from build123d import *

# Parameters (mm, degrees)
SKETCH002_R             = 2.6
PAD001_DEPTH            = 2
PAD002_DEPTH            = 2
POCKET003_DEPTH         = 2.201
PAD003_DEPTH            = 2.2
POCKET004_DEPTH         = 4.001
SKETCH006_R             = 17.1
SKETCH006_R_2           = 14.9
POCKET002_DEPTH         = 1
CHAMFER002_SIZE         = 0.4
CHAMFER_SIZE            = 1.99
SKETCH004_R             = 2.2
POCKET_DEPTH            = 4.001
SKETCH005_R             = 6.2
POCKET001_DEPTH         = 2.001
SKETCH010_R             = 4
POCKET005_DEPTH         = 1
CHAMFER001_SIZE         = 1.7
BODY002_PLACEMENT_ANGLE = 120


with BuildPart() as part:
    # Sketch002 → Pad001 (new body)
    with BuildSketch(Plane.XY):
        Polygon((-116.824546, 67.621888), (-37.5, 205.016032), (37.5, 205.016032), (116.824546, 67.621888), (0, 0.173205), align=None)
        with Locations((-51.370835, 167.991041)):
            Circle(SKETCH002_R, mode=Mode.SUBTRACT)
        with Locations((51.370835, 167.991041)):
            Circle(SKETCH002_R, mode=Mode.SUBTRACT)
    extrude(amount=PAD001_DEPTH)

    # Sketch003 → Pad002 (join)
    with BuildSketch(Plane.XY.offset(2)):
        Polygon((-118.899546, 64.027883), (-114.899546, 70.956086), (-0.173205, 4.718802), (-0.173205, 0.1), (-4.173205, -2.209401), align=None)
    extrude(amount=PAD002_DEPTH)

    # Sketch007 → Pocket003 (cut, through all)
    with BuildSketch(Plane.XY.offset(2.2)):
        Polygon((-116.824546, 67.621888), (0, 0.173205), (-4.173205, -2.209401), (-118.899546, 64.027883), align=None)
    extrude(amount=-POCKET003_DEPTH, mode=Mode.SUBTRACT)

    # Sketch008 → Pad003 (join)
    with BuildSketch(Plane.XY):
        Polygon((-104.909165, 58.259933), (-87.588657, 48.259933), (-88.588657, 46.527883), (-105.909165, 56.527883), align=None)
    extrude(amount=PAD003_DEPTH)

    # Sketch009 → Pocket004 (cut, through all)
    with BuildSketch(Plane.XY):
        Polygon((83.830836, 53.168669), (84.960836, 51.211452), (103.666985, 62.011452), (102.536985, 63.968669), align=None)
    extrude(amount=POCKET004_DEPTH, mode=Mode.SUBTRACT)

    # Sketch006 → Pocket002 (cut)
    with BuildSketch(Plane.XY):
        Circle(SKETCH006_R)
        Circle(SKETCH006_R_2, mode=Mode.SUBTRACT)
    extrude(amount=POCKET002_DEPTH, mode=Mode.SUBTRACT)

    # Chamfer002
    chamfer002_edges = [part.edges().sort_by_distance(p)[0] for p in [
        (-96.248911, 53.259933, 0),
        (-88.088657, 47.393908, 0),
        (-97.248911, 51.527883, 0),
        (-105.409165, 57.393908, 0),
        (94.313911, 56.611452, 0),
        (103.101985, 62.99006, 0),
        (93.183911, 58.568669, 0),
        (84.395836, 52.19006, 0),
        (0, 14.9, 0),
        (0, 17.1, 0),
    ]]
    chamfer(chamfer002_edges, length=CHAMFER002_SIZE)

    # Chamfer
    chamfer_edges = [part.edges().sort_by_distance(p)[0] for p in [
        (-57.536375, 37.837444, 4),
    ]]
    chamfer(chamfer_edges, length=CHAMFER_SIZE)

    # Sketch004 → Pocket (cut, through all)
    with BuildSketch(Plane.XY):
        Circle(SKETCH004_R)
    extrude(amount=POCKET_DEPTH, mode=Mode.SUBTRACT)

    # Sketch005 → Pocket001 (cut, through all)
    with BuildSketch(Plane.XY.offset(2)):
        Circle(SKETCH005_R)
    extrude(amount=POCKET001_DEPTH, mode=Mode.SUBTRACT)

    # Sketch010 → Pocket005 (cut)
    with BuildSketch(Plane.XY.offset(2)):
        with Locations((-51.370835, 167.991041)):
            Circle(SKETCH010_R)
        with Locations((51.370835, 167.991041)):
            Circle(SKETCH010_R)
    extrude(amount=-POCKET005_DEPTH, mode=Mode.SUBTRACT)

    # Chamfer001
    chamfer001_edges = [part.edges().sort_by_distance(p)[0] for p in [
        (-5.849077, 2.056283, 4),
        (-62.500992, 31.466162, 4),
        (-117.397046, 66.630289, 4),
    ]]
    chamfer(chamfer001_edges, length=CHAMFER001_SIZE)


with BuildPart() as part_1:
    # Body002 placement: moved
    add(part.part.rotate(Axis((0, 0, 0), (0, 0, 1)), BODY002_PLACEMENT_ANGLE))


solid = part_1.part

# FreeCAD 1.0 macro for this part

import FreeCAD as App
import Part
import Sketcher
Q = App.Units.Quantity


def edges_at(feature, points):
    """Names of the edges that pass closest to the given points."""
    edges = feature.Shape.Edges
    near = lambda p: min(range(len(edges)), key=lambda i: edges[i].distToShape(Part.Vertex(*p))[0])
    return sorted({f"Edge{near(p) + 1}" for p in points})


def add_polygon(sketch, points):
    """Adds a closed chain of lines whose ends are joined by coincident constraints."""
    first, n = sketch.GeometryCount, len(points)
    for a, b in zip(points, points[1:] + points[:1]):
        sketch.addGeometry(Part.LineSegment(App.Vector(*a, 0), App.Vector(*b, 0)), False)
    for i in range(n):
        sketch.addConstraint(Sketcher.Constraint("Coincident", first + i, 2, first + (i + 1) % n, 1))

doc = App.newDocument("Part")
body = doc.addObject("PartDesign::Body", "Body")

sketch1 = doc.addObject("Sketcher::SketchObject", "Sketch")
body.addObject(sketch1)
sketch1.AttachmentSupport = (doc.XY_Plane, [""])
sketch1.MapMode = "FlatFace"
add_polygon(sketch1, [(-37.5, 205), (-116.8, 67.6), (0, 0.2), (116.8, 67.6), (37.5, 205)])
sketch1.addGeometry(Part.Circle(App.Vector(51.4, 168, 0), App.Vector(0, 0, 1), 2.6), False)
sketch1.addGeometry(Part.Circle(App.Vector(-51.4, 168, 0), App.Vector(0, 0, 1), 2.6), False)
sketch1.addConstraint([
    Sketcher.Constraint("Horizontal", 4),
    Sketcher.Constraint("Equal", 5, 6),
    Sketcher.Constraint("Symmetric", 5, 3, 6, 3, -2),
    Sketcher.Constraint("Symmetric", 0, 2, 2, 2, -2),
    Sketcher.Constraint("PointOnObject", 1, 2, -2),
    Sketcher.Constraint("Perpendicular", 0, 1),
    Sketcher.Constraint("Perpendicular", 2, 3),
    Sketcher.Constraint("Diameter", 5, 5.2),
    Sketcher.Constraint("DistanceX", 4, 2, 4, 1, 75.0),
    Sketcher.Constraint("Angle", 0, Q("-120 deg")),
    Sketcher.Constraint("DistanceY", -1, 1, 5, 3, 167.991041),
    Sketcher.Constraint("DistanceY", -1, 1, 0, 2, 67.621888),
    Sketcher.Constraint("DistanceY", -1, 1, 3, 2, 205.016032),
    Sketcher.Constraint("DistanceX", 6, 3, 5, 3, 102.74167),
])
pad1 = doc.addObject("PartDesign::Pad", "Pad")
body.addObject(pad1)
pad1.Profile = sketch1
pad1.Length = 2

sketch2 = doc.addObject("Sketcher::SketchObject", "Sketch001")
body.addObject(sketch2)
sketch2.AttachmentSupport = (doc.XY_Plane, [""])
sketch2.MapMode = "FlatFace"
sketch2.AttachmentOffset = App.Placement(App.Vector(0, 0, 2), App.Rotation())
add_polygon(sketch2, [(-114.9, 71), (-118.9, 64), (-4.2, -2.2), (-0.2, 0.1), (-0.2, 4.7)])
sketch2.addConstraint([
    Sketcher.Constraint("Vertical", 3),
    Sketcher.Constraint("Perpendicular", 0, 1),
    Sketcher.Constraint("Parallel", 1, 4),
    Sketcher.Constraint("Equal", 1, 4),
    Sketcher.Constraint("Angle", 0, Q("-120.000001 deg")),
    Sketcher.Constraint("Angle", 2, Q("29.999999 deg")),
    Sketcher.Constraint("Distance", 0, 8.0),
    Sketcher.Constraint("DistanceY", -1, 1, 2, 2, 0.1),
    Sketcher.Constraint("DistanceX", 0, 2, 1, 2, 114.726341),
    Sketcher.Constraint("DistanceX", 0, 2, -1, 1, 118.899546),
])
pad2 = doc.addObject("PartDesign::Pad", "Pad001")
body.addObject(pad2)
pad2.Profile = sketch2
pad2.Length = 2

sketch3 = doc.addObject("Sketcher::SketchObject", "Sketch002")
body.addObject(sketch3)
sketch3.AttachmentSupport = (doc.XY_Plane, [""])
sketch3.MapMode = "FlatFace"
sketch3.AttachmentOffset = App.Placement(App.Vector(0, 0, 2.2), App.Rotation())
add_polygon(sketch3, [(0, 0.2), (-116.8, 67.6), (-118.9, 64), (-4.2, -2.2)])
sketch3.addConstraint([
    Sketcher.Constraint("PointOnObject", 3, 2, -2),
    Sketcher.Constraint("Perpendicular", 0, 1),
    Sketcher.Constraint("Perpendicular", 1, 2),
    Sketcher.Constraint("Angle", 0, Q("150 deg")),
    Sketcher.Constraint("Distance", 1, 4.15),
    Sketcher.Constraint("DistanceY", 2, 2, -1, 1, 2.209401),
    Sketcher.Constraint("Distance", 3, 4.805461),
    Sketcher.Constraint("DistanceY", -1, 1, 0, 2, 67.621888),
])
pocket1 = doc.addObject("PartDesign::Pocket", "Pocket")
body.addObject(pocket1)
pocket1.Profile = sketch3
pocket1.Type = "ThroughAll"

sketch4 = doc.addObject("Sketcher::SketchObject", "Sketch003")
body.addObject(sketch4)
sketch4.AttachmentSupport = (doc.XY_Plane, [""])
sketch4.MapMode = "FlatFace"
add_polygon(sketch4, [(-87.6, 48.3), (-104.9, 58.3), (-105.9, 56.5), (-88.6, 46.5)])
sketch4.addConstraint([
    Sketcher.Constraint("Perpendicular", 0, 1),
    Sketcher.Constraint("Perpendicular", 1, 2),
    Sketcher.Constraint("Perpendicular", 2, 3),
    Sketcher.Constraint("Angle", 0, Q("150 deg")),
    Sketcher.Constraint("Distance", 0, 20.0),
    Sketcher.Constraint("Distance", 1, 1.999999),
    Sketcher.Constraint("DistanceX", 0, 2, -1, 1, 104.909165),
    Sketcher.Constraint("DistanceY", -1, 1, 0, 2, 58.259933),
])
pad3 = doc.addObject("PartDesign::Pad", "Pad002")
body.addObject(pad3)
pad3.Profile = sketch4
pad3.Length = 2.2

sketch5 = doc.addObject("Sketcher::SketchObject", "Sketch004")
body.addObject(sketch5)
sketch5.AttachmentSupport = (doc.XY_Plane, [""])
sketch5.MapMode = "FlatFace"
add_polygon(sketch5, [(83.8, 53.2), (85, 51.2), (103.7, 62), (102.5, 64)])
sketch5.addConstraint([
    Sketcher.Constraint("Perpendicular", 0, 1),
    Sketcher.Constraint("Perpendicular", 1, 2),
    Sketcher.Constraint("Perpendicular", 2, 3),
    Sketcher.Constraint("Angle", 0, Q("-59.999995 deg")),
    Sketcher.Constraint("Distance", 1, 21.6),
    Sketcher.Constraint("Distance", 0, 2.26),
    Sketcher.Constraint("DistanceY", -1, 1, 1, 2, 62.011452),
    Sketcher.Constraint("DistanceX", -1, 1, 0, 2, 84.960836),
])
pocket2 = doc.addObject("PartDesign::Pocket", "Pocket001")
body.addObject(pocket2)
pocket2.Profile = sketch5
pocket2.Type = "ThroughAll"
pocket2.Reversed = True

sketch6 = doc.addObject("Sketcher::SketchObject", "Sketch005")
body.addObject(sketch6)
sketch6.AttachmentSupport = (doc.XY_Plane, [""])
sketch6.MapMode = "FlatFace"
sketch6.addGeometry([
    Part.Circle(App.Vector(0, 0, 0), App.Vector(0, 0, 1), 17),
    Part.Circle(App.Vector(0, 0, 0), App.Vector(0, 0, 1), 15),
], False)
sketch6.addConstraint([
    Sketcher.Constraint("Coincident", 0, 3, -1, 1),
    Sketcher.Constraint("Coincident", 1, 3, -1, 1),
    Sketcher.Constraint("Diameter", 0, 34.2),
    Sketcher.Constraint("Diameter", 1, 29.8),
])
pocket3 = doc.addObject("PartDesign::Pocket", "Pocket002")
body.addObject(pocket3)
pocket3.Profile = sketch6
pocket3.Length = 1
pocket3.Reversed = True
doc.recompute()

chamfer = doc.addObject("PartDesign::Chamfer", "Chamfer")
body.addObject(chamfer)
chamfer.Base = (pocket3, edges_at(pocket3, [
    (-96.249, 53.26, 0),
    (-88.089, 47.394, 0),
    (-97.249, 51.528, 0),
    (-105.409, 57.394, 0),
    (94.314, 56.611, 0),
    (103.102, 62.99, 0),
    (93.184, 58.569, 0),
    (84.396, 52.19, 0),
    (0, 14.9, 0),
    (0, 17.1, 0),
]))
chamfer.Size = 0.4
doc.recompute()

chamfer2 = doc.addObject("PartDesign::Chamfer", "Chamfer001")
body.addObject(chamfer2)
chamfer2.Base = (chamfer, edges_at(chamfer, [(-57.536, 37.837, 4)]))
chamfer2.Size = 1.99

sketch7 = doc.addObject("Sketcher::SketchObject", "Sketch006")
body.addObject(sketch7)
sketch7.AttachmentSupport = (doc.XY_Plane, [""])
sketch7.MapMode = "FlatFace"
sketch7.addGeometry(Part.Circle(App.Vector(0, 0, 0), App.Vector(0, 0, 1), 2.2), False)
sketch7.addConstraint([
    Sketcher.Constraint("Coincident", 0, 3, -1, 1),
    Sketcher.Constraint("Diameter", 0, 4.4),
])
pocket4 = doc.addObject("PartDesign::Pocket", "Pocket003")
body.addObject(pocket4)
pocket4.Profile = sketch7
pocket4.Type = "ThroughAll"
pocket4.Reversed = True

sketch8 = doc.addObject("Sketcher::SketchObject", "Sketch007")
body.addObject(sketch8)
sketch8.AttachmentSupport = (doc.XY_Plane, [""])
sketch8.MapMode = "FlatFace"
sketch8.AttachmentOffset = App.Placement(App.Vector(0, 0, 2), App.Rotation())
sketch8.addGeometry(Part.Circle(App.Vector(0, 0, 0), App.Vector(0, 0, 1), 6), False)
sketch8.addConstraint([
    Sketcher.Constraint("Coincident", 0, 3, -1, 1),
    Sketcher.Constraint("Diameter", 0, 12.4),
])
pocket5 = doc.addObject("PartDesign::Pocket", "Pocket004")
body.addObject(pocket5)
pocket5.Profile = sketch8
pocket5.Type = "ThroughAll"
pocket5.Reversed = True

sketch9 = doc.addObject("Sketcher::SketchObject", "Sketch008")
body.addObject(sketch9)
sketch9.AttachmentSupport = (doc.XY_Plane, [""])
sketch9.MapMode = "FlatFace"
sketch9.AttachmentOffset = App.Placement(App.Vector(0, 0, 2), App.Rotation())
sketch9.addGeometry([
    Part.Circle(App.Vector(-51.4, 168, 0), App.Vector(0, 0, 1), 4),
    Part.Circle(App.Vector(51.4, 168, 0), App.Vector(0, 0, 1), 4),
], False)
sketch9.addConstraint([
    Sketcher.Constraint("Equal", 0, 1),
    Sketcher.Constraint("Symmetric", 0, 3, 1, 3, -2),
    Sketcher.Constraint("Diameter", 0, 8.0),
    Sketcher.Constraint("DistanceY", -1, 1, 0, 3, 167.991041),
    Sketcher.Constraint("DistanceX", 0, 3, 1, 3, 102.74167),
])
pocket6 = doc.addObject("PartDesign::Pocket", "Pocket005")
body.addObject(pocket6)
pocket6.Profile = sketch9
pocket6.Length = 1
doc.recompute()

chamfer3 = doc.addObject("PartDesign::Chamfer", "Chamfer002")
body.addObject(chamfer3)
chamfer3.Base = (pocket6, edges_at(pocket6, [(-5.849, 2.056, 4), (-62.501, 31.466, 4), (-117.397, 66.63, 4)]))
chamfer3.Size = 1.7
body2 = doc.addObject("PartDesign::Body", "Body001")
doc.recompute()

body.Placement = App.Placement(App.Vector(0, 0, 0), App.Rotation(App.Vector(0, 0, 1), 120))
boolean = doc.addObject("PartDesign::Boolean", "Boolean")
body2.addObject(boolean)
boolean.Type = "Fuse"
boolean.addObjects([body])

doc.recompute()
